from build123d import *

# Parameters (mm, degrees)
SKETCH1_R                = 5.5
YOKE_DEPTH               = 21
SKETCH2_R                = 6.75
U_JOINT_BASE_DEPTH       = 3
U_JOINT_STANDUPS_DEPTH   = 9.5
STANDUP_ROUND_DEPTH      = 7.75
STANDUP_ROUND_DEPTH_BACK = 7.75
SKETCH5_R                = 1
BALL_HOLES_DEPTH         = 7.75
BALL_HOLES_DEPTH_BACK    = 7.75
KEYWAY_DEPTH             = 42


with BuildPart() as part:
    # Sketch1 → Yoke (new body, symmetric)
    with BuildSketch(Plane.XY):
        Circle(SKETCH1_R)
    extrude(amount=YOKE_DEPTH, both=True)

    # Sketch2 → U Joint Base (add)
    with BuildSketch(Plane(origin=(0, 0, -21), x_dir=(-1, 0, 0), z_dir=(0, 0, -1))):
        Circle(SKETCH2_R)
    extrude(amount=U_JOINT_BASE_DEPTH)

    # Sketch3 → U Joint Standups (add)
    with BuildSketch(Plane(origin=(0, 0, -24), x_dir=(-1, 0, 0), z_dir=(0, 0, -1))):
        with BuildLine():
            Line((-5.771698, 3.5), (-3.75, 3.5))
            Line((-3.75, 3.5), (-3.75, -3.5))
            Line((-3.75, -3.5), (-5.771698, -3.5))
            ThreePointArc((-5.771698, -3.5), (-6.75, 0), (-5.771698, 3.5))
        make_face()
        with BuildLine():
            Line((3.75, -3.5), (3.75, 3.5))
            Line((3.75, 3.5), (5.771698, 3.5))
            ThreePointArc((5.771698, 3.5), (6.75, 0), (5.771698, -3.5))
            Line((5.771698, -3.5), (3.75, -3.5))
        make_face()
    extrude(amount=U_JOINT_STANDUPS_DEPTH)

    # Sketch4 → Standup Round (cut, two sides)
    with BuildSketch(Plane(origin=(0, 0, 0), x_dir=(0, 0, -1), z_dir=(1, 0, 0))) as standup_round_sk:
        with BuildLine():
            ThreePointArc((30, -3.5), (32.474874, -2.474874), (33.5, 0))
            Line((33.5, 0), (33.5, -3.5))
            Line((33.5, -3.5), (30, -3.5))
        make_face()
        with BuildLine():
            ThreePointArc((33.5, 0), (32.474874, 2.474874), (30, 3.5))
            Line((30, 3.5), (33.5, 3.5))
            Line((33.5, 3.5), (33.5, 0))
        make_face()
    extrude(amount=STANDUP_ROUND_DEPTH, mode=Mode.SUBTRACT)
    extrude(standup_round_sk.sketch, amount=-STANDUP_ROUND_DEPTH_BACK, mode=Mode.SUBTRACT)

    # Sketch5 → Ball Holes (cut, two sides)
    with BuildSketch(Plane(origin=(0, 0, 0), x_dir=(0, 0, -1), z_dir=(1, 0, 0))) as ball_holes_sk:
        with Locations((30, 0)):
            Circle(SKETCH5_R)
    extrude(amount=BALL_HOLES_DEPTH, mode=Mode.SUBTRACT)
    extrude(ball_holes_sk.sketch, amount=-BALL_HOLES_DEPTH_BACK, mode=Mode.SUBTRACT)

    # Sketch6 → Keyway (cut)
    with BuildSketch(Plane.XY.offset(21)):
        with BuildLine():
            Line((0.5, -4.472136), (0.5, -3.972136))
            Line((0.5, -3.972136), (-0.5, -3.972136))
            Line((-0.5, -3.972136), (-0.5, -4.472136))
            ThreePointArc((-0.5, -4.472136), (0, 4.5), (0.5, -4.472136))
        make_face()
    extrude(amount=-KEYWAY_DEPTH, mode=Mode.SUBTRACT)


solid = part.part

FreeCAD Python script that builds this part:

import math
import FreeCAD as App
import Part
import Sketcher

V = App.Vector

doc = App.newDocument("Part")
params = doc.addObject("Spreadsheet::Sheet", "Params")
for row, (alias, value) in enumerate([
    ("sketch1_diameter", "11 mm"),
    ("pad1_length", "42 mm"),
    ("sketch2_diameter", "13.5 mm"),
    ("pad2_length", "3 mm"),
    ("sketch3_height", "7 mm"),
    ("sketch3_radius", "6.749999 mm"),
    ("pad3_length", "9.5 mm"),
    ("sketch4_radius", "3.499999 mm"),
    ("sketch5_diameter", "2 mm"),
    ("sketch6_radius", "4.5 mm"),
    ("sketch6_width", "1 mm"),
    ("sketch6_height", "0.5 mm"),
    ("pocket3_length", "42 mm"),
], start=1):
    params.set(f"A{row}", alias)
    params.set(f"B{row}", "=" + value)
    params.setAlias(f"B{row}", alias)

body = doc.addObject("PartDesign::Body", "Body")

sketch1 = doc.addObject("Sketcher::SketchObject", "Sketch")
body.addObject(sketch1)
sketch1.AttachmentSupport = (doc.XY_Plane, [""])
sketch1.MapMode = "FlatFace"
sketch1.addGeometry(Part.Circle(V(0, 0, 0), V(0, 0, 1), 6), False)
sketch1.addConstraint([
    Sketcher.Constraint("Coincident", 0, 3, -1, 1),
    Sketcher.Constraint("Diameter", 0, 11.0),
])
sketch1.setExpression("Constraints[1]", "Params.sketch1_diameter")
pad1 = doc.addObject("PartDesign::Pad", "Pad")
body.addObject(pad1)
pad1.Profile = sketch1
pad1.setExpression("Length", "Params.pad1_length")
pad1.Midplane = True

sketch2 = doc.addObject("Sketcher::SketchObject", "Sketch001")
body.addObject(sketch2)
sketch2.AttachmentSupport = (doc.XY_Plane, [""])
sketch2.MapMode = "FlatFace"
sketch2.AttachmentOffset = App.Placement(V(0, 0, -21), App.Rotation())
sketch2.addGeometry(Part.Circle(V(0, 0, 0), V(0, 0, 1), 7), False)
sketch2.addConstraint([
    Sketcher.Constraint("Coincident", 0, 3, -1, 1),
    Sketcher.Constraint("Diameter", 0, 13.5),
])
sketch2.setExpression("Constraints[1]", "Params.sketch2_diameter")
pad2 = doc.addObject("PartDesign::Pad", "Pad001")
body.addObject(pad2)
pad2.Profile = sketch2
pad2.setExpression("Length", "Params.pad2_length")
pad2.Reversed = True

sketch3 = doc.addObject("Sketcher::SketchObject", "Sketch002")
body.addObject(sketch3)
sketch3.AttachmentSupport = (doc.XY_Plane, [""])
sketch3.MapMode = "FlatFace"
sketch3.AttachmentOffset = App.Placement(V(0, 0, -24), App.Rotation())
sketch3.addGeometry([
    Part.LineSegment(V(3.8, 3.5, 0), V(5.8, 3.5, 0)),
    Part.ArcOfCircle(Part.Circle(V(0, 0, 0), V(0, 0, 1), 6.7), math.radians(-31), math.radians(31)),
    Part.LineSegment(V(5.8, -3.5, 0), V(3.8, -3.5, 0)),
    Part.LineSegment(V(3.8, -3.5, 0), V(3.8, 3.5, 0)),
    Part.LineSegment(V(-3.8, 3.5, 0), V(-3.8, -3.5, 0)),
    Part.LineSegment(V(-3.8, -3.5, 0), V(-5.8, -3.5, 0)),
    Part.ArcOfCircle(Part.Circle(V(0, 0, 0), V(0, 0, 1), 6.7), math.radians(149), math.radians(211)),
    Part.LineSegment(V(-5.8, 3.5, 0), V(-3.8, 3.5, 0)),
], False)
sketch3.addConstraint([
    Sketcher.Constraint("Coincident", 0, 2, 1, 2),
    Sketcher.Constraint("Coincident", 1, 1, 2, 1),
    Sketcher.Constraint("Coincident", 2, 2, 3, 1),
    Sketcher.Constraint("Coincident", 3, 2, 0, 1),
    Sketcher.Constraint("Coincident", 4, 2, 5, 1),
    Sketcher.Constraint("Coincident", 5, 2, 6, 2),
    Sketcher.Constraint("Coincident", 6, 1, 7, 1),
    Sketcher.Constraint("Coincident", 7, 2, 4, 1),
    Sketcher.Constraint("Horizontal", 0),
    Sketcher.Constraint("Horizontal", 2),
    Sketcher.Constraint("Vertical", 3),
    Sketcher.Constraint("Vertical", 4),
    Sketcher.Constraint("Horizontal", 5),
    Sketcher.Constraint("Horizontal", 7),
    Sketcher.Constraint("Coincident", 1, 3, -1, 1),
    Sketcher.Constraint("Coincident", 6, 3, -1, 1),
    Sketcher.Constraint("Equal", 1, 6),
    Sketcher.Constraint("Symmetric", 3, 2, 4, 2, -1, 1),
    Sketcher.Constraint("Horizontal", 2, 2, 4, 2),
    Sketcher.Constraint("Horizontal", 3, 2, 6, 1),
    Sketcher.Constraint("DistanceY", 3, 1, 3, 2, 7.0),
    Sketcher.Constraint("Radius", 1, 6.749999),
    Sketcher.Constraint("DistanceX", 4, 2, 2, 2, 7.5),
])
sketch3.setExpression("Constraints[20]", "Params.sketch3_height")
sketch3.setExpression("Constraints[21]", "Params.sketch3_radius")
pad3 = doc.addObject("PartDesign::Pad", "Pad002")
body.addObject(pad3)
pad3.Profile = sketch3
pad3.setExpression("Length", "Params.pad3_length")
pad3.Reversed = True

sketch4 = doc.addObject("Sketcher::SketchObject", "Sketch003")
body.addObject(sketch4)
sketch4.AttachmentSupport = (doc.YZ_Plane, [""])
sketch4.MapMode = "FlatFace"
sketch4.addGeometry([
    Part.ArcOfCircle(Part.Circle(V(0, -30, 0), V(0, 0, 1), 3.5), math.radians(180), math.radians(270)),
    Part.LineSegment(V(-3.5, -30, 0), V(-3.5, -33.5, 0)),
    Part.LineSegment(V(-3.5, -33.5, 0), V(0, -33.5, 0)),
    Part.ArcOfCircle(Part.Circle(V(0, -30, 0), V(0, 0, 1), 3.5), math.radians(-90), math.radians(0)),
    Part.LineSegment(V(0, -33.5, 0), V(3.5, -33.5, 0)),
    Part.LineSegment(V(3.5, -33.5, 0), V(3.5, -30, 0)),
], False)
sketch4.addConstraint([
    Sketcher.Constraint("Tangent", 0, 1, 1, 1),
    Sketcher.Constraint("Coincident", 1, 2, 2, 1),
    Sketcher.Constraint("Tangent", 2, 2, 0, 2),
    Sketcher.Constraint("Tangent", 3, 1, 4, 1),
    Sketcher.Constraint("Coincident", 4, 2, 5, 1),
    Sketcher.Constraint("Tangent", 5, 2, 3, 2),
    Sketcher.Constraint("Vertical", 1),
    Sketcher.Constraint("Horizontal", 2),
    Sketcher.Constraint("Horizontal", 4),
    Sketcher.Constraint("Vertical", 5),
    Sketcher.Constraint("Coincident", 3, 3, 0, 3),
    Sketcher.Constraint("Equal", 0, 3),
    Sketcher.Constraint("PointOnObject", 0, 3, -2),
    Sketcher.Constraint("Radius", 0, 3.499999),
    Sketcher.Constraint("DistanceY", 0, 3, -1, 1, 30.000001),
])
sketch4.setExpression("Constraints[13]", "Params.sketch4_radius")
pocket1 = doc.addObject("PartDesign::Pocket", "Pocket")
body.addObject(pocket1)
pocket1.Profile = sketch4
pocket1.Type = "ThroughAll"
pocket1.Midplane = True

sketch5 = doc.addObject("Sketcher::SketchObject", "Sketch004")
body.addObject(sketch5)
sketch5.AttachmentSupport = (doc.YZ_Plane, [""])
sketch5.MapMode = "FlatFace"
sketch5.addGeometry(Part.Circle(V(0, -30, 0), V(0, 0, 1), 1), False)
sketch5.addConstraint([
    Sketcher.Constraint("PointOnObject", 0, 3, -2),
    Sketcher.Constraint("Diameter", 0, 2.0),
    Sketcher.Constraint("DistanceY", 0, 3, -1, 1, 30.0),
])
sketch5.setExpression("Constraints[1]", "Params.sketch5_diameter")
pocket2 = doc.addObject("PartDesign::Pocket", "Pocket001")
body.addObject(pocket2)
pocket2.Profile = sketch5
pocket2.Type = "ThroughAll"
pocket2.Midplane = True

sketch6 = doc.addObject("Sketcher::SketchObject", "Sketch005")
body.addObject(sketch6)
sketch6.AttachmentSupport = (doc.XY_Plane, [""])
sketch6.MapMode = "FlatFace"
sketch6.AttachmentOffset = App.Placement(V(0, 0, 21), App.Rotation())
sketch6.addGeometry([
    Part.LineSegment(V(0.5, -4, 0), V(0.5, -4.5, 0)),
    Part.ArcOfCircle(Part.Circle(V(0, 0, 0), V(0, 0, 1), 4.5), math.radians(-84), math.radians(264)),
    Part.LineSegment(V(-0.5, -4.5, 0), V(-0.5, -4, 0)),
    Part.LineSegment(V(-0.5, -4, 0), V(0.5, -4, 0)),
], False)
sketch6.addConstraint([
    Sketcher.Constraint("Coincident", 0, 2, 1, 1),
    Sketcher.Constraint("Coincident", 1, 2, 2, 1),
    Sketcher.Constraint("Coincident", 2, 2, 3, 1),
    Sketcher.Constraint("Coincident", 3, 2, 0, 1),
    Sketcher.Constraint("Vertical", 0),
    Sketcher.Constraint("Vertical", 2),
    Sketcher.Constraint("Horizontal", 3),
    Sketcher.Constraint("Coincident", 1, 3, -1, 1),
    Sketcher.Constraint("Horizontal", 0, 2, 1, 2),
    Sketcher.Constraint("Radius", 1, 4.5),
    Sketcher.Constraint("DistanceX", 3, 1, 3, 2, 1.0),
    Sketcher.Constraint("DistanceY", 0, 2, 0, 1, 0.5),
])
sketch6.setExpression("Constraints[9]", "Params.sketch6_radius")
sketch6.setExpression("Constraints[10]", "Params.sketch6_width")
sketch6.setExpression("Constraints[11]", "Params.sketch6_height")
pocket3 = doc.addObject("PartDesign::Pocket", "Pocket002")
body.addObject(pocket3)
pocket3.Profile = sketch6
pocket3.setExpression("Length", "Params.pocket3_length")

doc.recompute()
